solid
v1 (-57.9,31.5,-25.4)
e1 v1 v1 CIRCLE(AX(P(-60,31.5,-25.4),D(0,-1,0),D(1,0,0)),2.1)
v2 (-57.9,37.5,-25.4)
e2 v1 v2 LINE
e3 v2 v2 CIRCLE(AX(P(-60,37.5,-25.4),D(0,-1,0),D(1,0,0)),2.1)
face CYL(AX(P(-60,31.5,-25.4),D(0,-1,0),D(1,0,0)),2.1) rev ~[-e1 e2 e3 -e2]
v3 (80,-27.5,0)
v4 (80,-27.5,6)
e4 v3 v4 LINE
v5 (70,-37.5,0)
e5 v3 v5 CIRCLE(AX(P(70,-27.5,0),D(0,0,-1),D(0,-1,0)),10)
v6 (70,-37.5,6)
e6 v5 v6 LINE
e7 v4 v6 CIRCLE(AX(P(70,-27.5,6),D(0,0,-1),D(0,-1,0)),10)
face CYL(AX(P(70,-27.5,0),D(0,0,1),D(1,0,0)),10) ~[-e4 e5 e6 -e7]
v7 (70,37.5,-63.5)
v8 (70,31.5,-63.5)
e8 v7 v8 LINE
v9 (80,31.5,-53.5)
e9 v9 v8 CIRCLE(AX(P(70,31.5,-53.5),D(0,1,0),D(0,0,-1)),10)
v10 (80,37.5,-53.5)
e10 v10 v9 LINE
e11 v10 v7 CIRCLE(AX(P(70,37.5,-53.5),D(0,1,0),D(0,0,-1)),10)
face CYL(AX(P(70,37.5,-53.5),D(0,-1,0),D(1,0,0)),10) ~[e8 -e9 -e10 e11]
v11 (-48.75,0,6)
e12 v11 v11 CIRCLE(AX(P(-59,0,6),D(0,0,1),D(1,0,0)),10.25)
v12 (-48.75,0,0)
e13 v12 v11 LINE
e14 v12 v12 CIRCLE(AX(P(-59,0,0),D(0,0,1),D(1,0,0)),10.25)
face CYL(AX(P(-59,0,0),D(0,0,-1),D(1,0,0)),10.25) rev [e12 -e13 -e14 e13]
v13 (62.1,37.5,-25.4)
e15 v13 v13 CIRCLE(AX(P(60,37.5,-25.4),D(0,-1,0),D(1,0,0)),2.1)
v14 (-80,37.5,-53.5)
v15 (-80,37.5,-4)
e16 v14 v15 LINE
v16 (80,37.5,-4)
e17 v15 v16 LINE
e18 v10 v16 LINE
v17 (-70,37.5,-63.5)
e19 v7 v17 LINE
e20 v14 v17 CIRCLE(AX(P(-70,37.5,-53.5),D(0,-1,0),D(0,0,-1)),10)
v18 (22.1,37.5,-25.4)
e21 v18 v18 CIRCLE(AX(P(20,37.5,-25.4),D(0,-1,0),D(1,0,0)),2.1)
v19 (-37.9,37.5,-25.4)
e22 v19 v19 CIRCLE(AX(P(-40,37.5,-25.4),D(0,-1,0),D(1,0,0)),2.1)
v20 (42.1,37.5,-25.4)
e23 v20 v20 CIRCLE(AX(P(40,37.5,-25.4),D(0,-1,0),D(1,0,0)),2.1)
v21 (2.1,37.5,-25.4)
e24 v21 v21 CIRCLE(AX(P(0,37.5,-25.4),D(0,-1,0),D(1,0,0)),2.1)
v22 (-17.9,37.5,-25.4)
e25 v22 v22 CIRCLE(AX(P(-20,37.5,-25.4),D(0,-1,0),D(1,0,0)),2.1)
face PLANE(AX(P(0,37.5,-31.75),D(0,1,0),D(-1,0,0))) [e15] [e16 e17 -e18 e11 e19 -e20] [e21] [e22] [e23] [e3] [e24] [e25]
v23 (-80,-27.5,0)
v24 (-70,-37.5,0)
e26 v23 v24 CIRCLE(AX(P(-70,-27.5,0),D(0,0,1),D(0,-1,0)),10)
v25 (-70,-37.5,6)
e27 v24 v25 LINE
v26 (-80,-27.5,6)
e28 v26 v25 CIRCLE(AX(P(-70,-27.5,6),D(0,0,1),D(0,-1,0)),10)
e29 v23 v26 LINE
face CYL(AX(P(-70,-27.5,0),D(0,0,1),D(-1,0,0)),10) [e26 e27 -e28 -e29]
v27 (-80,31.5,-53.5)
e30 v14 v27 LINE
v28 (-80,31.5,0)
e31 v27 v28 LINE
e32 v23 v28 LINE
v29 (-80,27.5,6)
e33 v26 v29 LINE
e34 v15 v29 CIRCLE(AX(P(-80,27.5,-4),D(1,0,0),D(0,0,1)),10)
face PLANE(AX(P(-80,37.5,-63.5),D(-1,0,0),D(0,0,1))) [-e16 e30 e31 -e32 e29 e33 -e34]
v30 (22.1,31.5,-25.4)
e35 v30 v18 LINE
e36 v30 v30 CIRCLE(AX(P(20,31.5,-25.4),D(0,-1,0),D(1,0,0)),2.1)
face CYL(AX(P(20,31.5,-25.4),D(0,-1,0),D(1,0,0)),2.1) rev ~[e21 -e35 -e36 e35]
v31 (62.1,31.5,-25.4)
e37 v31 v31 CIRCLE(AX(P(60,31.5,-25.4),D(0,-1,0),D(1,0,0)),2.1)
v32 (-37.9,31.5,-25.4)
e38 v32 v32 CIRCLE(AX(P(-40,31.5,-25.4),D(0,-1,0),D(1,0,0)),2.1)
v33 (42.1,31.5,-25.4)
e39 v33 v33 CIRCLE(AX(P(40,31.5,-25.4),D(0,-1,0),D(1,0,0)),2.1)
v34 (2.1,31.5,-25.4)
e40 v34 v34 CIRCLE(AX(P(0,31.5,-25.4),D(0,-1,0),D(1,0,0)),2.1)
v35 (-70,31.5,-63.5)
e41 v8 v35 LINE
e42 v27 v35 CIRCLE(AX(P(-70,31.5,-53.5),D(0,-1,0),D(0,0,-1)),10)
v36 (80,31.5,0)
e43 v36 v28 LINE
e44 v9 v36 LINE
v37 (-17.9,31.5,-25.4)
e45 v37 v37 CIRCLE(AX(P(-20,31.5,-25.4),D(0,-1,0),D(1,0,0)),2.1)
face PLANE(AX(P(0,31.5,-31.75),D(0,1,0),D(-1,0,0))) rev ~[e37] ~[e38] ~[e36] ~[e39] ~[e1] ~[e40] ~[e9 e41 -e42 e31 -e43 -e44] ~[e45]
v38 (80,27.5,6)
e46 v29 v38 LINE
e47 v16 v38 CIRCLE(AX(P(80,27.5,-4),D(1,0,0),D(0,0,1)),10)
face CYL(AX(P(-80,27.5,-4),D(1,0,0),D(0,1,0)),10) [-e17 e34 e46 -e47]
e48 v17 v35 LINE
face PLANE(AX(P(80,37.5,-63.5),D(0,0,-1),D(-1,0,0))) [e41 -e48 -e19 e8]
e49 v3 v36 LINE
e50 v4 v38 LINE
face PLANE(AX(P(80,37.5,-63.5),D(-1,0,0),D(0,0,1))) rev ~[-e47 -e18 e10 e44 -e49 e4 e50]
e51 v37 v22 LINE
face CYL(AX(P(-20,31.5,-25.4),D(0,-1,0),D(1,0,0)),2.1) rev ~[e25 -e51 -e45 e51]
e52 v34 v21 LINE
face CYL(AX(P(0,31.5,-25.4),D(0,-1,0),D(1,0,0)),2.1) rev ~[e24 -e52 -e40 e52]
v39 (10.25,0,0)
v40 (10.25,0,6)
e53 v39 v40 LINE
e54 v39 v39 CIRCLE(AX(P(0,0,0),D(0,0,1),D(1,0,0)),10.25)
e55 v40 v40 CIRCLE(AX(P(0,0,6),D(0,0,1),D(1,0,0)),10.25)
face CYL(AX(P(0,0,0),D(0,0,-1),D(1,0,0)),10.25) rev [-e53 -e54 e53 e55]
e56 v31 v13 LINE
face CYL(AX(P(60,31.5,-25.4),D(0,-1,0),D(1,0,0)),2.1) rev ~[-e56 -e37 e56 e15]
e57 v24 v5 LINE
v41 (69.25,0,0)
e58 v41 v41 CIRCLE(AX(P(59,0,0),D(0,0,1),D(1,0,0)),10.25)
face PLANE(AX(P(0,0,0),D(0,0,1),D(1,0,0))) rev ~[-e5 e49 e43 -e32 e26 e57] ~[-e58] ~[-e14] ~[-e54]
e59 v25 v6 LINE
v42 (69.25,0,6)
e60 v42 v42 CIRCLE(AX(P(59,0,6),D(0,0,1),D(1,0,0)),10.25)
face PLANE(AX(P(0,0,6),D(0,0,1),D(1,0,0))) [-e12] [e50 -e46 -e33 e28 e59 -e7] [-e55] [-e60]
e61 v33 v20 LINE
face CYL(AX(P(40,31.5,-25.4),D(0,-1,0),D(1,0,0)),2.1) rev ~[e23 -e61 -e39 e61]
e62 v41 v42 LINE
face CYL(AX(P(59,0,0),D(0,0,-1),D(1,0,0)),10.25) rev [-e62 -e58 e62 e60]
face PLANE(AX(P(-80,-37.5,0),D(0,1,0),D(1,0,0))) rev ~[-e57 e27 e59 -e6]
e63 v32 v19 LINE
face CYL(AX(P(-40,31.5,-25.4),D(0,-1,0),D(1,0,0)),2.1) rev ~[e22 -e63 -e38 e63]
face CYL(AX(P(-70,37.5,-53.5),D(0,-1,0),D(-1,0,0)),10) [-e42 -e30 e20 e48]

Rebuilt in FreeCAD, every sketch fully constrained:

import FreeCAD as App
import Part
import Sketcher

V = App.Vector
Q = App.Units.Quantity


def edges_at(feature, points):
    """Names of the edges that pass closest to the given points."""
    edges = feature.Shape.Edges
    near = lambda p: min(range(len(edges)), key=lambda i: edges[i].distToShape(Part.Vertex(*p))[0])
    return sorted({f"Edge{near(p) + 1}" for p in points})


def add_polygon(sketch, points):
    """Adds a closed chain of lines whose ends are joined by coincident constraints."""
    first, n = sketch.GeometryCount, len(points)
    for a, b in zip(points, points[1:] + points[:1]):
        sketch.addGeometry(Part.LineSegment(App.Vector(*a, 0), App.Vector(*b, 0)), False)
    for i in range(n):
        sketch.addConstraint(Sketcher.Constraint("Coincident", first + i, 2, first + (i + 1) % n, 1))

doc = App.newDocument("Part")
params = doc.addObject("Spreadsheet::Sheet", "Params")
for row, (alias, value) in enumerate([
    ("sketch1_diameter", "20.5 mm"),
    ("sketch1_width", "160 mm"),
    ("sketch1_height", "75 mm"),
    ("pad1_length", "6 mm"),
    ("sketch2_width", "160 mm"),
    ("sketch2_height", "63.5 mm"),
    ("pad2_length", "6 mm"),
    ("fillet_radius", "10 mm"),
    ("sketch3_diameter", "4.2 mm"),
    ("pocket1_length", "25 mm"),
], start=1):
    params.set(f"A{row}", alias)
    params.set(f"B{row}", "=" + value)
    params.setAlias(f"B{row}", alias)

body = doc.addObject("PartDesign::Body", "Body")

# Sketch on XY plane
sketch1 = doc.addObject("Sketcher::SketchObject", "Sketch")
body.addObject(sketch1)
sketch1.AttachmentSupport = (doc.XY_Plane, [""])
sketch1.MapMode = "FlatFace"
add_polygon(sketch1, [(-80, 38), (-80, -38), (80, -38), (80, 38)])  # lines 0-3
sketch1.addGeometry(Part.Circle(V(-59, 0, 0), V(0, 0, 1), 10), False)  # 4
sketch1.addGeometry(Part.Circle(V(0, 0, 0), V(0, 0, 1), 10), False)  # 5
sketch1.addGeometry(Part.Circle(V(59, 0, 0), V(0, 0, 1), 10), False)  # 6
sketch1.addConstraint([
    Sketcher.Constraint("Vertical", 0),
    Sketcher.Constraint("Horizontal", 1),
    Sketcher.Constraint("Vertical", 2),
    Sketcher.Constraint("Horizontal", 3),
    Sketcher.Constraint("Coincident", 5, 3, -1, 1),
    Sketcher.Constraint("Equal", 4, 5),
    Sketcher.Constraint("Equal", 5, 6),
    Sketcher.Constraint("Symmetric", 4, 3, 6, 3, -1, 1),
    Sketcher.Constraint("Symmetric", 0, 2, 2, 2, -1, 1),
    Sketcher.Constraint("PointOnObject", 4, 3, -1),
    Sketcher.Constraint("Diameter", 4, Q("20.5 mm")),
    Sketcher.Constraint("DistanceX", 1, 1, 1, 2, Q("160 mm")),
    Sketcher.Constraint("DistanceY", 0, 2, 0, 1, Q("75 mm")),
    Sketcher.Constraint("DistanceX", 4, 3, -1, 1, Q("59 mm")),
])
sketch1.setExpression("Constraints[14]", "Params.sketch1_diameter")
sketch1.setExpression("Constraints[15]", "Params.sketch1_width")
sketch1.setExpression("Constraints[16]", "Params.sketch1_height")
pad1 = doc.addObject("PartDesign::Pad", "Pad")
body.addObject(pad1)
pad1.Profile = sketch1
pad1.setExpression("Length", "Params.pad1_length")

# Sketch on XZ plane
sketch2 = doc.addObject("Sketcher::SketchObject", "Sketch001")
body.addObject(sketch2)
sketch2.AttachmentSupport = (doc.XZ_Plane, [""])
sketch2.MapMode = "FlatFace"
sketch2.AttachmentOffset = App.Placement(V(0, 0, -37.5), App.Rotation())
add_polygon(sketch2, [(80, 0), (80, -64), (-80, -64), (-80, 0)])  # lines 0-3
sketch2.addConstraint([
    Sketcher.Constraint("Vertical", 0),
    Sketcher.Constraint("Horizontal", 1),
    Sketcher.Constraint("Vertical", 2),
    Sketcher.Constraint("Horizontal", 3),
    Sketcher.Constraint("Symmetric", 2, 2, 3, 2, -1, 1),
    Sketcher.Constraint("DistanceX", 1, 2, 1, 1, Q("160 mm")),
    Sketcher.Constraint("DistanceY", 0, 2, 0, 1, Q("63.5 mm")),
])
sketch2.setExpression("Constraints[9]", "Params.sketch2_width")
sketch2.setExpression("Constraints[10]", "Params.sketch2_height")
pad2 = doc.addObject("PartDesign::Pad", "Pad001")
body.addObject(pad2)
pad2.Profile = sketch2
pad2.setExpression("Length", "Params.pad2_length")
doc.recompute()

fillet = doc.addObject("PartDesign::Fillet", "Fillet")
body.addObject(fillet)
fillet.Base = (pad2, edges_at(pad2, [
    (0, 37.5, 6),
    (-80, 34.5, -63.5),
    (80, 34.5, -63.5),
    (80, -37.5, 3),
    (-80, -37.5, 3),
]))
fillet.setExpression("Radius", "Params.fillet_radius")

# Sketch on XZ plane
sketch3 = doc.addObject("Sketcher::SketchObject", "Sketch002")
body.addObject(sketch3)
sketch3.AttachmentSupport = (doc.XZ_Plane, [""])
sketch3.MapMode = "FlatFace"
sketch3.AttachmentOffset = App.Placement(V(0, 0, -31.5), App.Rotation())
sketch3.addGeometry([
    Part.Circle(V(-60, -25.4, 0), V(0, 0, 1), 2.1),  # 0
    Part.Circle(V(-40, -25.4, 0), V(0, 0, 1), 2.1),  # 1
    Part.Circle(V(-20, -25.4, 0), V(0, 0, 1), 2.1),  # 2
    Part.Circle(V(0, -25.4, 0), V(0, 0, 1), 2.1),  # 3
    Part.Circle(V(20, -25.4, 0), V(0, 0, 1), 2.1),  # 4
    Part.Circle(V(40, -25.4, 0), V(0, 0, 1), 2.1),  # 5
    Part.Circle(V(60, -25.4, 0), V(0, 0, 1), 2.1),  # 6
], False)
sketch3.addConstraint([
    Sketcher.Constraint("Equal", 0, 1),
    Sketcher.Constraint("Equal", 1, 2),
    Sketcher.Constraint("Equal", 2, 3),
    Sketcher.Constraint("Equal", 3, 4),
    Sketcher.Constraint("Equal", 4, 5),
    Sketcher.Constraint("Equal", 5, 6),
    Sketcher.Constraint("Symmetric", 2, 3, 4, 3, -2),
    Sketcher.Constraint("Symmetric", 1, 3, 5, 3, -2),
    Sketcher.Constraint("Symmetric", 0, 3, 6, 3, -2),
    Sketcher.Constraint("PointOnObject", 3, 3, -2),
    Sketcher.Constraint("Horizontal", 0, 3, 1, 3),
    Sketcher.Constraint("Horizontal", 1, 3, 2, 3),
    Sketcher.Constraint("Horizontal", 2, 3, 3, 3),
    Sketcher.Constraint("Diameter", 0, Q("4.2 mm")),
    Sketcher.Constraint("DistanceX", 0, 3, -1, 1, Q("60 mm")),
    Sketcher.Constraint("DistanceX", 1, 3, -1, 1, Q("40 mm")),
    Sketcher.Constraint("DistanceX", 2, 3, -1, 1, Q("20 mm")),
    Sketcher.Constraint("DistanceY", 0, 3, -1, 1, Q("25.4 mm")),
])
sketch3.setExpression("Constraints[13]", "Params.sketch3_diameter")
pocket1 = doc.addObject("PartDesign::Pocket", "Pocket")
body.addObject(pocket1)
pocket1.Profile = sketch3
pocket1.setExpression("Length", "Params.pocket1_length")

doc.recompute()
